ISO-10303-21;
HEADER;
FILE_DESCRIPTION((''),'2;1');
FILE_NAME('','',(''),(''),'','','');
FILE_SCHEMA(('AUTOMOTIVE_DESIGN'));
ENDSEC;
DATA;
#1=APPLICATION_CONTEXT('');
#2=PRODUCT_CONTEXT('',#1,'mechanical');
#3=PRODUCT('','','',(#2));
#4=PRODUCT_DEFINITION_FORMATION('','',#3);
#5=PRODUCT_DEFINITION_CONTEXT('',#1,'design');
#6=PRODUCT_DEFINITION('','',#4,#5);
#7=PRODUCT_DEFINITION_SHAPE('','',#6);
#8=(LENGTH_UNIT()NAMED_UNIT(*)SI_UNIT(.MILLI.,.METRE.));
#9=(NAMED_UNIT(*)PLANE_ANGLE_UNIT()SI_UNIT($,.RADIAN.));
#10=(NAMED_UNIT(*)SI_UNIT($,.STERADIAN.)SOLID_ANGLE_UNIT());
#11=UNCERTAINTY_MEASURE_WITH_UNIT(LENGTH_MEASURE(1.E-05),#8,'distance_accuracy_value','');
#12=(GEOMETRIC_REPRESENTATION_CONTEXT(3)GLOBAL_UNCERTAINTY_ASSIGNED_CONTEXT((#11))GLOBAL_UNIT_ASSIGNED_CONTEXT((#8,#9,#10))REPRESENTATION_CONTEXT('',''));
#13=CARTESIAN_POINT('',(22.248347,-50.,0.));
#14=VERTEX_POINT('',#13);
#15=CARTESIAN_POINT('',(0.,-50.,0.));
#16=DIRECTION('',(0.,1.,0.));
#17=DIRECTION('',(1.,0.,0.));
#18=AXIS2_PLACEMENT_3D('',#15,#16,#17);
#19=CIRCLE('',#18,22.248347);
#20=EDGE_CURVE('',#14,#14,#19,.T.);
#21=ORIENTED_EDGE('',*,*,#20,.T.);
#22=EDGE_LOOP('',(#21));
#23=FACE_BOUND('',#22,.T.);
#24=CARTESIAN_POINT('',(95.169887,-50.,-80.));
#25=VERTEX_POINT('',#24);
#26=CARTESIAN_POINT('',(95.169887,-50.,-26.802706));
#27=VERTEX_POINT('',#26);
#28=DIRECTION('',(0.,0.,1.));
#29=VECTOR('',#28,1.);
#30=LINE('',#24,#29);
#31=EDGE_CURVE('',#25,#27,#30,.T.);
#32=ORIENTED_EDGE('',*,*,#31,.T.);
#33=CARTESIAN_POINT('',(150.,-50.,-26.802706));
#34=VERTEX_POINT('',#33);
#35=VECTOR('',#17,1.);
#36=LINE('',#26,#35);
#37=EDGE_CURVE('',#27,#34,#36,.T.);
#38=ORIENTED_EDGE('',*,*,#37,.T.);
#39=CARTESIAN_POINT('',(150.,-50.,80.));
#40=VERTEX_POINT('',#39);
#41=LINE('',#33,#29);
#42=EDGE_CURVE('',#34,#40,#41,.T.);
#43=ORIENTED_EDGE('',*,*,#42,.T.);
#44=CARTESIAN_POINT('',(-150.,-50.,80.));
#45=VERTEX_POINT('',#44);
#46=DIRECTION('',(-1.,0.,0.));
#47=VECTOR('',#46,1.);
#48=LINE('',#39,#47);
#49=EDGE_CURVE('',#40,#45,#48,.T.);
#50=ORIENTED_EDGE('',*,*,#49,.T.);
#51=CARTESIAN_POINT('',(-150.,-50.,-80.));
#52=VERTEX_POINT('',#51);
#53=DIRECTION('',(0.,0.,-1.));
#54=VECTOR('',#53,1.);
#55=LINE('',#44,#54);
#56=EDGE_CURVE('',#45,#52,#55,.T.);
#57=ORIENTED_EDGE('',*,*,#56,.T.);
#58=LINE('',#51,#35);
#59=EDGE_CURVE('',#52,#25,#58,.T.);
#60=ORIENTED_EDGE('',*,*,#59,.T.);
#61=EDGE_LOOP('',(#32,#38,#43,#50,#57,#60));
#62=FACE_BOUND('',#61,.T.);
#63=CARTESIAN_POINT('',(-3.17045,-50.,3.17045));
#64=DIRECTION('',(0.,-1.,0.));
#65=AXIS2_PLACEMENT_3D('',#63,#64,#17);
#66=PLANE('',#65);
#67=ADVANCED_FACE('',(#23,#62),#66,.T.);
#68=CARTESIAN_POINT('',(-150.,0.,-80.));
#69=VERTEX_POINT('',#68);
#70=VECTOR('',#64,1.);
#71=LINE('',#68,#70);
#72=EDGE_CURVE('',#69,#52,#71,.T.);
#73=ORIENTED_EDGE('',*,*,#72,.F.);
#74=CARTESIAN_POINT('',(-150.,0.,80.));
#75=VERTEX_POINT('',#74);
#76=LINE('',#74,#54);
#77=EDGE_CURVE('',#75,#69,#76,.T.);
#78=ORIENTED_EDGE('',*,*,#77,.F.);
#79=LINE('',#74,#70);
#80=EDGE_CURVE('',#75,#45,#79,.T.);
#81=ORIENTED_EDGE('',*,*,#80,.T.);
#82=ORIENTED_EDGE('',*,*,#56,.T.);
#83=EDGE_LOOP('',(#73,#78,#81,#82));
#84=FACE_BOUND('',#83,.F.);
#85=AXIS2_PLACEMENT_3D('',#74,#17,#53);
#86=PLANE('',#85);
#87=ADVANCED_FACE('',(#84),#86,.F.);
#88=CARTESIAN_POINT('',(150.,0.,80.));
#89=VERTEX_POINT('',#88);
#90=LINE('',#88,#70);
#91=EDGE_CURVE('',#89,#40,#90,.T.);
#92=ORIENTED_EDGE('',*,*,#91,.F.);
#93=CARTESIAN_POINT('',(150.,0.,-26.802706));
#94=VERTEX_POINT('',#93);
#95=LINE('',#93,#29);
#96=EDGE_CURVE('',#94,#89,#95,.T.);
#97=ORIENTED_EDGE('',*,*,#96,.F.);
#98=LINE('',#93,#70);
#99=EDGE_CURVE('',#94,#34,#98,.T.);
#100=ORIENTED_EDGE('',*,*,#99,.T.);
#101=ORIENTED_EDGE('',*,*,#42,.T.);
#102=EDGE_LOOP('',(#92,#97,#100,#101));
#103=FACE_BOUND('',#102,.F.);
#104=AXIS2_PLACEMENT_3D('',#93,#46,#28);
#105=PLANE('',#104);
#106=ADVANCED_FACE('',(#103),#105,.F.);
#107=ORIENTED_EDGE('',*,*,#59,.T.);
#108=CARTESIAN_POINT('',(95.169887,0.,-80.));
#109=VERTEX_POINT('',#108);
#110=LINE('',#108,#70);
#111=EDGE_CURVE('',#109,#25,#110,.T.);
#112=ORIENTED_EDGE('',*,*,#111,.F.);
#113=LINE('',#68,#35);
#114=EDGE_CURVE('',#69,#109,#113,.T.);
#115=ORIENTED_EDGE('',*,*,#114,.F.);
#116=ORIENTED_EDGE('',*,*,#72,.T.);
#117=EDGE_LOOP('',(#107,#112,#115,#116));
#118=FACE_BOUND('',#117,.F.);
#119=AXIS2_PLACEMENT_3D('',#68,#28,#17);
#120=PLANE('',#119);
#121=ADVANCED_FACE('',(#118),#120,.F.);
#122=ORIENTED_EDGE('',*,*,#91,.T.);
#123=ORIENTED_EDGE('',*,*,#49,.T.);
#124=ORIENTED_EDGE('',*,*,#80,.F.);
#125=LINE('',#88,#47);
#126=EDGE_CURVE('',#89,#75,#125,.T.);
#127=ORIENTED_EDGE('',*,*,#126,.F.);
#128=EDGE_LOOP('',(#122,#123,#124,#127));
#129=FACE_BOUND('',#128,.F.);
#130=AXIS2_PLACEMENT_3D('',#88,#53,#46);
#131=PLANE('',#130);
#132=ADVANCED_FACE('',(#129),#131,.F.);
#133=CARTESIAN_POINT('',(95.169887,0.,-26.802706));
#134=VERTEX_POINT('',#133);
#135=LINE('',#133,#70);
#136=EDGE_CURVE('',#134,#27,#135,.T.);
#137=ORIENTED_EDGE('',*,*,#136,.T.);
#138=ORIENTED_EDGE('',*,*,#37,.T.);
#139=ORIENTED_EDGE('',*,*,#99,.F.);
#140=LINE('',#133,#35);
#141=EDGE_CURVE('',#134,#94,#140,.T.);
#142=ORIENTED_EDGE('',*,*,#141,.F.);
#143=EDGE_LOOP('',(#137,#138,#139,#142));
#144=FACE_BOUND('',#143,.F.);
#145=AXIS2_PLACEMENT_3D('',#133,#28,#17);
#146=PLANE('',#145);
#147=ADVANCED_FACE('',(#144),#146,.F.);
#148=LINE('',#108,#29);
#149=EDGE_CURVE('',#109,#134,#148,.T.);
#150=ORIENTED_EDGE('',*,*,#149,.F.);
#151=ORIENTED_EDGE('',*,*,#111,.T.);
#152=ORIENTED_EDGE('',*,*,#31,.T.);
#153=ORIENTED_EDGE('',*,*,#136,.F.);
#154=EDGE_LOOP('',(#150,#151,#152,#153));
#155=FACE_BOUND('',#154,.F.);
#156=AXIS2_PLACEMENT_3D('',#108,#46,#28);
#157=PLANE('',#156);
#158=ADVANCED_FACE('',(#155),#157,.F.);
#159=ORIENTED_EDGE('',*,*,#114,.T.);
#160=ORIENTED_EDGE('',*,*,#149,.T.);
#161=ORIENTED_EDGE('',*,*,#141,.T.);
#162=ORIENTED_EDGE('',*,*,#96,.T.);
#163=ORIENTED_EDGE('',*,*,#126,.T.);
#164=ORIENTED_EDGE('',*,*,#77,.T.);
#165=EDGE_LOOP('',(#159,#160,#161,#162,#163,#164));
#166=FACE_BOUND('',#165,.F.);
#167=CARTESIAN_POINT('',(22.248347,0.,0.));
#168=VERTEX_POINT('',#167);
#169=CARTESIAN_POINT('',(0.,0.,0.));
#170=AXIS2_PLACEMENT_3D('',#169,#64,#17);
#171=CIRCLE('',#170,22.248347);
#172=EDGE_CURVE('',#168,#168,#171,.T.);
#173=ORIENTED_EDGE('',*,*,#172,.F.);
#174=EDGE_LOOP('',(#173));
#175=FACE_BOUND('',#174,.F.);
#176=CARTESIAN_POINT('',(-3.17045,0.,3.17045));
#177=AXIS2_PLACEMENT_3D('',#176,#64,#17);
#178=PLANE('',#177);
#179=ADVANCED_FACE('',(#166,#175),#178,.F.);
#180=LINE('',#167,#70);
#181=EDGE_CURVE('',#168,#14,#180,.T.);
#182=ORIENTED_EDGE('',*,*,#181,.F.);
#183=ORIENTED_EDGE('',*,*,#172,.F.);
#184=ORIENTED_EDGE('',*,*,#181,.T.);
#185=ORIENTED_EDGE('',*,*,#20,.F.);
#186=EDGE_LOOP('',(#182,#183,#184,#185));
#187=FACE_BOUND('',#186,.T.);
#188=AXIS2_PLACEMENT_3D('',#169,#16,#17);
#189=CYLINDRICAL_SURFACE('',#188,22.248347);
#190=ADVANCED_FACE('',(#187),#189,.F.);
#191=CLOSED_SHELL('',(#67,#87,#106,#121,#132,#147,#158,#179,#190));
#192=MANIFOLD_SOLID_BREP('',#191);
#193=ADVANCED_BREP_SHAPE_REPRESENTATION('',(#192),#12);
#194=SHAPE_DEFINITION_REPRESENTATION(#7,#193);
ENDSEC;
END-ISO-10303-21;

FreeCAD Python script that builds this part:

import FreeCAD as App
import Part
import Sketcher

V = App.Vector
Q = App.Units.Quantity


def add_polygon(sketch, points):
    """Adds a closed chain of lines whose ends are joined by coincident constraints."""
    first, n = sketch.GeometryCount, len(points)
    for a, b in zip(points, points[1:] + points[:1]):
        sketch.addGeometry(Part.LineSegment(App.Vector(*a, 0), App.Vector(*b, 0)), False)
    for i in range(n):
        sketch.addConstraint(Sketcher.Constraint("Coincident", first + i, 2, first + (i + 1) % n, 1))

doc = App.newDocument("Part")
body = doc.addObject("PartDesign::Body", "Body")

# Sketch on XZ plane
sketch1 = body.newObject("Sketcher::SketchObject", "Sketch")
sketch1.AttachmentSupport = (doc.getObject("XZ_Plane"), [""])
sketch1.MapMode = "FlatFace"
add_polygon(sketch1, [(-150, -80), (95, -80), (95, -27), (150, -27), (150, 80), (-150, 80)])  # lines 0-5
sketch1.addConstraint(Sketcher.Constraint("Horizontal", 0))
sketch1.addConstraint(Sketcher.Constraint("Vertical", 1))
sketch1.addConstraint(Sketcher.Constraint("Horizontal", 2))
sketch1.addConstraint(Sketcher.Constraint("Vertical", 3))
sketch1.addConstraint(Sketcher.Constraint("Horizontal", 4))
sketch1.addConstraint(Sketcher.Constraint("Vertical", 5))
sketch1.addConstraint(Sketcher.Constraint("Symmetric", 3, 2, 5, 2, -1, 1))
sketch1.addConstraint(Sketcher.Constraint("DistanceX", 4, 2, 4, 1, Q("300 mm")))
sketch1.addConstraint(Sketcher.Constraint("DistanceY", 5, 2, 5, 1, Q("160 mm")))
sketch1.addConstraint(Sketcher.Constraint("DistanceX", 0, 1, 0, 2, Q("245.169887 mm")))
sketch1.addConstraint(Sketcher.Constraint("DistanceY", 1, 1, 1, 2, Q("53.197294 mm")))
pad1 = body.newObject("PartDesign::Pad", "Pad")
pad1.Profile = sketch1
pad1.Length = 50

# Sketch on XZ plane
sketch2 = body.newObject("Sketcher::SketchObject", "Sketch001")
sketch2.AttachmentSupport = (doc.getObject("XZ_Plane"), [""])
sketch2.MapMode = "FlatFace"
sketch2.addGeometry(Part.Circle(V(0, 0, 0), V(0, 0, 1), 22), False)
sketch2.addConstraint(Sketcher.Constraint("Coincident", 0, 3, -1, 1))
sketch2.addConstraint(Sketcher.Constraint("Diameter", 0, Q("44.496694 mm")))
pocket1 = body.newObject("PartDesign::Pocket", "Pocket")
pocket1.Profile = sketch2
pocket1.Type = "ThroughAll"
pocket1.Reversed = True

doc.recompute()
